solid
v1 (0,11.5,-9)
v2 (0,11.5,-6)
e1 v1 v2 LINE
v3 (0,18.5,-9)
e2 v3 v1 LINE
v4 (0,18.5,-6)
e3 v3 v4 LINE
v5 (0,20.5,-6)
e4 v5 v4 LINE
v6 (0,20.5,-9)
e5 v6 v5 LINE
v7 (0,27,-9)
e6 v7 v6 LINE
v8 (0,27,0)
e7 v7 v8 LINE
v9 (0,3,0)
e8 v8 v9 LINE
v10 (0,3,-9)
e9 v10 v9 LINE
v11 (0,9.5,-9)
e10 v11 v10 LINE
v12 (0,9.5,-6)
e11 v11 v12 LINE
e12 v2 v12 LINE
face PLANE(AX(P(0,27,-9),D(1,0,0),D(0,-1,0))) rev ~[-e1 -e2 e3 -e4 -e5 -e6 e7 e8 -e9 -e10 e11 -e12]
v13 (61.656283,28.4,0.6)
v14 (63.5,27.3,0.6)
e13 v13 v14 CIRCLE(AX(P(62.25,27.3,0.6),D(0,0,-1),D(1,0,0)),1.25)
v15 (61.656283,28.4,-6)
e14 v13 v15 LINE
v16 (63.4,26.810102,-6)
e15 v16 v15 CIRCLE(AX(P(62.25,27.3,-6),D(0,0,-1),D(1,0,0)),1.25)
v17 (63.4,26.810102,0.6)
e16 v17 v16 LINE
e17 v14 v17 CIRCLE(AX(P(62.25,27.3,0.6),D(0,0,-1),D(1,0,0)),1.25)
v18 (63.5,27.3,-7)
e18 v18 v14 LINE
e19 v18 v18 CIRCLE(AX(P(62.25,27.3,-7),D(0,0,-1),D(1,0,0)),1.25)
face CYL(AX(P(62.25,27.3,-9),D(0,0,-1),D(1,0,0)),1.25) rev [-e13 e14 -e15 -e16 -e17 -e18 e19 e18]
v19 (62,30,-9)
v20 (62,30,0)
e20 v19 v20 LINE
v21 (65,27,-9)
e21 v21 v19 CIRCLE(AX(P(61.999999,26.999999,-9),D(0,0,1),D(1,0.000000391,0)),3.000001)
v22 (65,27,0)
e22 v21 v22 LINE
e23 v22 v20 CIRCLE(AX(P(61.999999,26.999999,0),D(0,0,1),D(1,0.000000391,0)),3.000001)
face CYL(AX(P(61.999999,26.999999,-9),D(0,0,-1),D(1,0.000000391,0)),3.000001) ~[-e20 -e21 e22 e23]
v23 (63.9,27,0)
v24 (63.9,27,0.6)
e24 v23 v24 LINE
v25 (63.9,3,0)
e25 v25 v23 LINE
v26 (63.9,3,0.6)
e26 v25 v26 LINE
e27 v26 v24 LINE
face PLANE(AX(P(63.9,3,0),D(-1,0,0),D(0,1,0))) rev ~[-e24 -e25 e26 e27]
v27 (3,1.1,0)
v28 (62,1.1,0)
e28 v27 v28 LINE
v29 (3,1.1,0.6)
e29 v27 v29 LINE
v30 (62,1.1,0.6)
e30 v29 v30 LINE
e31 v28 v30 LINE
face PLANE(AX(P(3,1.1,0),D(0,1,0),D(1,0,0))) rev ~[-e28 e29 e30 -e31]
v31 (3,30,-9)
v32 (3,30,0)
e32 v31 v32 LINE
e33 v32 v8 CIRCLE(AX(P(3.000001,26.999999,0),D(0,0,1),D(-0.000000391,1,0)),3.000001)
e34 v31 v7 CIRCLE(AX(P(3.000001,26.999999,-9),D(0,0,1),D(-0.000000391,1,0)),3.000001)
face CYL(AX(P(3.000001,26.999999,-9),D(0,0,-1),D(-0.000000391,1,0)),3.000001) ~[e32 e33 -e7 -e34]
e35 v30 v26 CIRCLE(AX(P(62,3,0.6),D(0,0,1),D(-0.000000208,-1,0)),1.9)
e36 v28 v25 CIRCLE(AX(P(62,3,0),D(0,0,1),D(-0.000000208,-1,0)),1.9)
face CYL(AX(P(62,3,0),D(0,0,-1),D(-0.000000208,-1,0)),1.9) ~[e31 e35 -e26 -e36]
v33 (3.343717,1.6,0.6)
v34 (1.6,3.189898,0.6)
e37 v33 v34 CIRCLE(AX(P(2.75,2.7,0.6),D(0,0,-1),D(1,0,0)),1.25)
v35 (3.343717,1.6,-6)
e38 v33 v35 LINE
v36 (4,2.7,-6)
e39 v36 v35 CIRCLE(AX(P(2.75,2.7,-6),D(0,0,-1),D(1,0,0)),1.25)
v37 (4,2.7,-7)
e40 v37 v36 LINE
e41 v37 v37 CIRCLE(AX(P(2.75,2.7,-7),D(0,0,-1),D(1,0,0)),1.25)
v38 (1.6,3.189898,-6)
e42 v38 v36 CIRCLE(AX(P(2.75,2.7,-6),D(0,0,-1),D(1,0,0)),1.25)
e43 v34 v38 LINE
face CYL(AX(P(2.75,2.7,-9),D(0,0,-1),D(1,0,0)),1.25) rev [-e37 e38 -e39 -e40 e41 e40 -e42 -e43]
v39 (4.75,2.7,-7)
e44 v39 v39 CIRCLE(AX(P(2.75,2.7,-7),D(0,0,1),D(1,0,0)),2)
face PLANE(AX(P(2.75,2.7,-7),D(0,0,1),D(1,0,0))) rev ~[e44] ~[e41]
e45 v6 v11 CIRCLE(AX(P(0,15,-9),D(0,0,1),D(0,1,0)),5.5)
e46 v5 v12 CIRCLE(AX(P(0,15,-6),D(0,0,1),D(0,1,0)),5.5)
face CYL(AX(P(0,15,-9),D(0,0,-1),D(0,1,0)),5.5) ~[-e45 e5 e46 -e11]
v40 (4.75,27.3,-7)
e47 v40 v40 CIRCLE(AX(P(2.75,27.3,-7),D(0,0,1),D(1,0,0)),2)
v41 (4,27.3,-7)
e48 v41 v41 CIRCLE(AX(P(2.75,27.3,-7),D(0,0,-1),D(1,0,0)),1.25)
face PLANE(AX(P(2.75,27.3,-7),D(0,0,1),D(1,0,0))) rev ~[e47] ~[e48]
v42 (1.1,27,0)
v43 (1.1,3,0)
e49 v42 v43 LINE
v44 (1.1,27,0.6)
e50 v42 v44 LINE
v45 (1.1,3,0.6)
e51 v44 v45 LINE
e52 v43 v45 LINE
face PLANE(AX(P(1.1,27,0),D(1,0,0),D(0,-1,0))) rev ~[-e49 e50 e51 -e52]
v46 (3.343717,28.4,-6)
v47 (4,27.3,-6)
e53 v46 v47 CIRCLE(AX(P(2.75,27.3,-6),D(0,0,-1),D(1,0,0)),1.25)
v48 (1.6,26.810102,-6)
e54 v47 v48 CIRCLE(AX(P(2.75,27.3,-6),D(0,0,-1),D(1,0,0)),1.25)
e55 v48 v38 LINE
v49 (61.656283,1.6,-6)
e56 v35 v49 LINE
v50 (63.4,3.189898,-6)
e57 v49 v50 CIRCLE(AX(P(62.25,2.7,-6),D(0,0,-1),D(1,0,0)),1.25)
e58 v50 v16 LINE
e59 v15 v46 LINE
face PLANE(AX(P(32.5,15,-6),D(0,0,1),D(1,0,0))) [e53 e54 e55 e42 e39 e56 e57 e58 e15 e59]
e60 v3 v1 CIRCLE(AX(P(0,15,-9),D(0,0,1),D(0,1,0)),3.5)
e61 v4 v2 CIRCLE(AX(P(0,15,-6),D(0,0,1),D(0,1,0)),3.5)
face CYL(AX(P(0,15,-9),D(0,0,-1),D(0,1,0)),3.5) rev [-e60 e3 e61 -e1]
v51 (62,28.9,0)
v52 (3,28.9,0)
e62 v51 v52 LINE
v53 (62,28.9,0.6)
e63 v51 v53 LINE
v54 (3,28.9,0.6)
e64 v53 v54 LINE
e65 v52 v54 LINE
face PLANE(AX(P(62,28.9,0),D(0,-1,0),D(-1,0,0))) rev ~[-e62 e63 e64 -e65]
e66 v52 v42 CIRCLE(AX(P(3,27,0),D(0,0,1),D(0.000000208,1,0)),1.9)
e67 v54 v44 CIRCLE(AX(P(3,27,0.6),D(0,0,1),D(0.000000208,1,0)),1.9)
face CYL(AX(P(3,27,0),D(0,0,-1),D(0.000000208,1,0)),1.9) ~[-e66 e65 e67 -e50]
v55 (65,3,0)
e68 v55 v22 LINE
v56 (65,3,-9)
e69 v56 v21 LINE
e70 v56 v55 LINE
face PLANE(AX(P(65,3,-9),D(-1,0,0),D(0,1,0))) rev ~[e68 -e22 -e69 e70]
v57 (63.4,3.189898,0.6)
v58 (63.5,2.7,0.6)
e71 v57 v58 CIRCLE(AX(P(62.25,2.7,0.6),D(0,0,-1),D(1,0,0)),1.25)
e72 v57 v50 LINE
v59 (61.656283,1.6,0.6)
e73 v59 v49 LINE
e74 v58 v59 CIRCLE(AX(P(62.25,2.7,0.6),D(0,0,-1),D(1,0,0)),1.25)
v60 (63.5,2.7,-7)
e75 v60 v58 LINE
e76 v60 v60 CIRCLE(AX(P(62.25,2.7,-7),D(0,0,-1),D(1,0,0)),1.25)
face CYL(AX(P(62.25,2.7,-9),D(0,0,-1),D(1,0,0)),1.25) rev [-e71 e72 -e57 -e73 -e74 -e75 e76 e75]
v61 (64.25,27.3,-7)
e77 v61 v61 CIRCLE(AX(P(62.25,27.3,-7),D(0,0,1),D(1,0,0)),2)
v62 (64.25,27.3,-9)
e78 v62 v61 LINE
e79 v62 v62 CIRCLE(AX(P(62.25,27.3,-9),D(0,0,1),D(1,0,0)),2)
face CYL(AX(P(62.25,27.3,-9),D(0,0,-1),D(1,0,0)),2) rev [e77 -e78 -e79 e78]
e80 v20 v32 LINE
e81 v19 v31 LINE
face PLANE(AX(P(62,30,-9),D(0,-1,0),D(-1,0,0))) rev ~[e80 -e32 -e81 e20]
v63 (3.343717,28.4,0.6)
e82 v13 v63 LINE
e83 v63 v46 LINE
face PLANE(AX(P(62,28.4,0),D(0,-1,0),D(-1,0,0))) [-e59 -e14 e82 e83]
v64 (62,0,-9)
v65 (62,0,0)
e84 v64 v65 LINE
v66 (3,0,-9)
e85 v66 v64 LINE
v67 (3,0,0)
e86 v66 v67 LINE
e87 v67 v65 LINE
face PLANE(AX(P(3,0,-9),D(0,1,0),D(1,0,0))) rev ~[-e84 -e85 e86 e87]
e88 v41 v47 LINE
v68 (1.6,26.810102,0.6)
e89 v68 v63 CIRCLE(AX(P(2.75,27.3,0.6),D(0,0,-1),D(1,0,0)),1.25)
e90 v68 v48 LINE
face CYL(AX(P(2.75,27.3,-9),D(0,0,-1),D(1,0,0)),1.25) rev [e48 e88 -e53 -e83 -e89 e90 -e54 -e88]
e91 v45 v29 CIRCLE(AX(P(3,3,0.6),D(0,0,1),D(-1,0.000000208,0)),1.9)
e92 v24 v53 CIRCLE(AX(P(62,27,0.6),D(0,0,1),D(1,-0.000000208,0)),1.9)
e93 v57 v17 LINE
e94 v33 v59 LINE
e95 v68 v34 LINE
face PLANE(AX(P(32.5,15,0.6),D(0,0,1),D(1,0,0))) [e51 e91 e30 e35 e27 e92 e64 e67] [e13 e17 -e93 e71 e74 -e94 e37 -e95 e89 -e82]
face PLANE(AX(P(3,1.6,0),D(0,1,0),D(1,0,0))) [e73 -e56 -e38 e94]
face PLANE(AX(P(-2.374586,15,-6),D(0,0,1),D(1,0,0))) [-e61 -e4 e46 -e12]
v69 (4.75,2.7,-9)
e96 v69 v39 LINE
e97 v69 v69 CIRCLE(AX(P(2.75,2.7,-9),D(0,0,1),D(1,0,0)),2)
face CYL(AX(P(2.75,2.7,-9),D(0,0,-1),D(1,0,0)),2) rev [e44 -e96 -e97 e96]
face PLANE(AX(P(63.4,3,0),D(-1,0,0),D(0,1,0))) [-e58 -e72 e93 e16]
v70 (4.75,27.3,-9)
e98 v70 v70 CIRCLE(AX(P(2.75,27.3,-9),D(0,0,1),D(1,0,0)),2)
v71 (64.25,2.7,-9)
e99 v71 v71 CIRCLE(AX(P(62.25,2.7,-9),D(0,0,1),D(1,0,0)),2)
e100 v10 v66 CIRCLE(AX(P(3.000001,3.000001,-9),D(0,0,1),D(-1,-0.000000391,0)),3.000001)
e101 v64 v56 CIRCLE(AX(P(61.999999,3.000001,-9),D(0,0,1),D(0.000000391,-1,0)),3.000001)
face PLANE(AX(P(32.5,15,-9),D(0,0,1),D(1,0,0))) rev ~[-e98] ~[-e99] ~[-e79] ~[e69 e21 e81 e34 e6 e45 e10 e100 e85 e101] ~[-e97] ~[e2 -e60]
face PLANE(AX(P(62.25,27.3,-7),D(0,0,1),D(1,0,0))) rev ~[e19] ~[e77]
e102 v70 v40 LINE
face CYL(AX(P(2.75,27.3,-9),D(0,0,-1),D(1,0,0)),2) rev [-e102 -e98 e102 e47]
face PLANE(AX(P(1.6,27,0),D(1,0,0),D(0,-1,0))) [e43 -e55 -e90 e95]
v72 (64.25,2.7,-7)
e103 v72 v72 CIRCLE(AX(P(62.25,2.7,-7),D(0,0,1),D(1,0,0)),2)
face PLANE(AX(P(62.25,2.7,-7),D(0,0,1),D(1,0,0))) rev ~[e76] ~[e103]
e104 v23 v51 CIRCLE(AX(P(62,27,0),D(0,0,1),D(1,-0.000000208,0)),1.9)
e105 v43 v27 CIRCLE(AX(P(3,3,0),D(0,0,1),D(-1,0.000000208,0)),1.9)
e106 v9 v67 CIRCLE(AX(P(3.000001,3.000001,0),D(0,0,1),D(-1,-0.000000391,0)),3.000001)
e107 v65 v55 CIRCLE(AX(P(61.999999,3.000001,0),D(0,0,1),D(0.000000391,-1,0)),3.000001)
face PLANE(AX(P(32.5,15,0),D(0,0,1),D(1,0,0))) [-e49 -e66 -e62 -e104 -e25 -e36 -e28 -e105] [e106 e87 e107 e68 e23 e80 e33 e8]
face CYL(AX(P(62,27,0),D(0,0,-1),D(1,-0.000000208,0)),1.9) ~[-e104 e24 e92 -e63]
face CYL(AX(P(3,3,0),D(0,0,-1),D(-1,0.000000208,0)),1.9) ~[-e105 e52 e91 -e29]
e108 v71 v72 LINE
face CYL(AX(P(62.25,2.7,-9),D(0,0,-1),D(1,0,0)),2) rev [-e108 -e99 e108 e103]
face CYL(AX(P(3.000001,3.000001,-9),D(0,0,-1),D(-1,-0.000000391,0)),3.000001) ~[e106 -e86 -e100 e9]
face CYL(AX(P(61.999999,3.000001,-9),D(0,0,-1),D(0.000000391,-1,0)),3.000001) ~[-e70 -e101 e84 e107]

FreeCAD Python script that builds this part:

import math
import FreeCAD as App
import Part
import Sketcher
Q = App.Units.Quantity

doc = App.newDocument("Part")
params = doc.addObject("Spreadsheet::Sheet", "Params")
for row, (alias, value) in enumerate([
    ("sketch1_radius", "3.000001 mm"),
    ("sketch1_width", "59 mm"),
    ("sketch1_height", "24 mm"),
    ("pad1_length", "9 mm"),
    ("sketch2_radius", "1.400002 mm"),
    ("sketch2_width", "59 mm"),
    ("sketch2_height", "24 mm"),
    ("pocket1_length", "6 mm"),
    ("sketch3_radius", "1.9 mm"),
    ("sketch3_radius2", "1.400002 mm"),
    ("sketch3_width", "59 mm"),
    ("sketch3_height", "24 mm"),
    ("pad2_length", "0.6 mm"),
    ("sketch4_diameter", "4 mm"),
    ("pocket2_length", "2 mm"),
    ("sketch5_diameter", "2.5 mm"),
    ("pocket3_length", "10 mm"),
    ("sketch6_radius", "5.5 mm"),
    ("sketch6_radius2", "3.5 mm"),
    ("pad3_length", "3 mm"),
], start=1):
    params.set(f"A{row}", alias)
    params.set(f"B{row}", "=" + value)
    params.setAlias(f"B{row}", alias)

body = doc.addObject("PartDesign::Body", "Body")

sketch1 = body.newObject("Sketcher::SketchObject", "Sketch")
sketch1.AttachmentSupport = (doc.getObject("XY_Plane"), [""])
sketch1.MapMode = "FlatFace"
sketch1.addGeometry([
    Part.LineSegment(App.Vector(0, 27, 0), App.Vector(0, 3, 0)),
    Part.ArcOfCircle(Part.Circle(App.Vector(3, 3, 0), App.Vector(0, 0, 1), 3), math.radians(-180), math.radians(-90)),
    Part.LineSegment(App.Vector(3, 0, 0), App.Vector(62, 0, 0)),
    Part.ArcOfCircle(Part.Circle(App.Vector(62, 3, 0), App.Vector(0, 0, 1), 3), math.radians(-90), math.radians(0)),
    Part.LineSegment(App.Vector(65, 3, 0), App.Vector(65, 27, 0)),
    Part.ArcOfCircle(Part.Circle(App.Vector(62, 27, 0), App.Vector(0, 0, 1), 3), math.radians(0), math.radians(90)),
    Part.LineSegment(App.Vector(62, 30, 0), App.Vector(3, 30, 0)),
    Part.ArcOfCircle(Part.Circle(App.Vector(3, 27, 0), App.Vector(0, 0, 1), 3), math.radians(90), math.radians(180)),
], False)
sketch1.addConstraint([
    Sketcher.Constraint("Tangent", 0, 2, 1, 1),
    Sketcher.Constraint("Tangent", 1, 2, 2, 1),
    Sketcher.Constraint("Tangent", 2, 2, 3, 1),
    Sketcher.Constraint("Tangent", 3, 2, 4, 1),
    Sketcher.Constraint("Tangent", 4, 2, 5, 1),
    Sketcher.Constraint("Tangent", 5, 2, 6, 1),
    Sketcher.Constraint("Tangent", 6, 2, 7, 1),
    Sketcher.Constraint("Tangent", 7, 2, 0, 1),
    Sketcher.Constraint("Vertical", 0),
    Sketcher.Constraint("Horizontal", 2),
    Sketcher.Constraint("Vertical", 4),
    Sketcher.Constraint("Horizontal", 6),
    Sketcher.Constraint("Equal", 1, 3),
    Sketcher.Constraint("Equal", 3, 5),
    Sketcher.Constraint("Equal", 5, 7),
    Sketcher.Constraint("PointOnObject", 0, 2, -2),
    Sketcher.Constraint("PointOnObject", 1, 2, -1),
    Sketcher.Constraint("Radius", 1, Q("3.000001 mm")),
    Sketcher.Constraint("DistanceX", 2, 1, 2, 2, Q("59 mm")),
    Sketcher.Constraint("DistanceY", 0, 2, 0, 1, Q("24 mm")),
])
sketch1.setExpression("Constraints[17]", "Params.sketch1_radius")
sketch1.setExpression("Constraints[18]", "Params.sketch1_width")
sketch1.setExpression("Constraints[19]", "Params.sketch1_height")
pad1 = body.newObject("PartDesign::Pad", "Pad")
pad1.Profile = sketch1
pad1.setExpression("Length", "Params.pad1_length")

sketch2 = body.newObject("Sketcher::SketchObject", "Sketch001")
sketch2.AttachmentSupport = (doc.getObject("XY_Plane"), [""])
sketch2.MapMode = "FlatFace"
sketch2.AttachmentOffset = App.Placement(App.Vector(0, 0, 9), App.Rotation())
sketch2.addGeometry([
    Part.LineSegment(App.Vector(1.6, 27, 0), App.Vector(1.6, 3, 0)),
    Part.ArcOfCircle(Part.Circle(App.Vector(3, 3, 0), App.Vector(0, 0, 1), 1.4), math.radians(-180), math.radians(-90)),
    Part.LineSegment(App.Vector(3, 1.6, 0), App.Vector(62, 1.6, 0)),
    Part.ArcOfCircle(Part.Circle(App.Vector(62, 3, 0), App.Vector(0, 0, 1), 1.4), math.radians(-90), math.radians(0)),
    Part.LineSegment(App.Vector(63.4, 3, 0), App.Vector(63.4, 27, 0)),
    Part.ArcOfCircle(Part.Circle(App.Vector(62, 27, 0), App.Vector(0, 0, 1), 1.4), math.radians(0), math.radians(90)),
    Part.LineSegment(App.Vector(62, 28.4, 0), App.Vector(3, 28.4, 0)),
    Part.ArcOfCircle(Part.Circle(App.Vector(3, 27, 0), App.Vector(0, 0, 1), 1.4), math.radians(90), math.radians(180)),
], False)
sketch2.addConstraint([
    Sketcher.Constraint("Tangent", 0, 2, 1, 1),
    Sketcher.Constraint("Tangent", 1, 2, 2, 1),
    Sketcher.Constraint("Tangent", 2, 2, 3, 1),
    Sketcher.Constraint("Tangent", 3, 2, 4, 1),
    Sketcher.Constraint("Tangent", 4, 2, 5, 1),
    Sketcher.Constraint("Tangent", 5, 2, 6, 1),
    Sketcher.Constraint("Tangent", 6, 2, 7, 1),
    Sketcher.Constraint("Tangent", 7, 2, 0, 1),
    Sketcher.Constraint("Vertical", 0),
    Sketcher.Constraint("Horizontal", 2),
    Sketcher.Constraint("Vertical", 4),
    Sketcher.Constraint("Horizontal", 6),
    Sketcher.Constraint("Equal", 1, 3),
    Sketcher.Constraint("Equal", 3, 5),
    Sketcher.Constraint("Equal", 5, 7),
    Sketcher.Constraint("Radius", 1, Q("1.400002 mm")),
    Sketcher.Constraint("DistanceX", 2, 1, 2, 2, Q("59 mm")),
    Sketcher.Constraint("DistanceY", 0, 2, 0, 1, Q("24 mm")),
    Sketcher.Constraint("DistanceX", -1, 1, 1, 3, Q("3.000002 mm")),
    Sketcher.Constraint("DistanceY", -1, 1, 1, 3, Q("3.000002 mm")),
])
sketch2.setExpression("Constraints[15]", "Params.sketch2_radius")
sketch2.setExpression("Constraints[16]", "Params.sketch2_width")
sketch2.setExpression("Constraints[17]", "Params.sketch2_height")
pocket1 = body.newObject("PartDesign::Pocket", "Pocket")
pocket1.Profile = sketch2
pocket1.setExpression("Length", "Params.pocket1_length")

sketch3 = body.newObject("Sketcher::SketchObject", "Sketch002")
sketch3.AttachmentSupport = (doc.getObject("XY_Plane"), [""])
sketch3.MapMode = "FlatFace"
sketch3.AttachmentOffset = App.Placement(App.Vector(0, 0, 9), App.Rotation())
sketch3.addGeometry([
    Part.LineSegment(App.Vector(1.1, 27, 0), App.Vector(1.1, 3, 0)),
    Part.ArcOfCircle(Part.Circle(App.Vector(3, 3, 0), App.Vector(0, 0, 1), 1.9), math.radians(180), math.radians(270)),
    Part.LineSegment(App.Vector(3, 1.1, 0), App.Vector(62, 1.1, 0)),
    Part.ArcOfCircle(Part.Circle(App.Vector(62, 3, 0), App.Vector(0, 0, 1), 1.9), math.radians(-90), math.radians(0)),
    Part.LineSegment(App.Vector(63.9, 3, 0), App.Vector(63.9, 27, 0)),
    Part.ArcOfCircle(Part.Circle(App.Vector(62, 27, 0), App.Vector(0, 0, 1), 1.9), math.radians(0), math.radians(90)),
    Part.LineSegment(App.Vector(62, 28.9, 0), App.Vector(3, 28.9, 0)),
    Part.ArcOfCircle(Part.Circle(App.Vector(3, 27, 0), App.Vector(0, 0, 1), 1.9), math.radians(90), math.radians(180)),
    Part.LineSegment(App.Vector(1.6, 3, 0), App.Vector(1.6, 27, 0)),
    Part.ArcOfCircle(Part.Circle(App.Vector(3, 27, 0), App.Vector(0, 0, 1), 1.4), math.radians(90), math.radians(180)),
    Part.LineSegment(App.Vector(3, 28.4, 0), App.Vector(62, 28.4, 0)),
    Part.ArcOfCircle(Part.Circle(App.Vector(62, 27, 0), App.Vector(0, 0, 1), 1.4), math.radians(0), math.radians(90)),
    Part.LineSegment(App.Vector(63.4, 27, 0), App.Vector(63.4, 3, 0)),
    Part.ArcOfCircle(Part.Circle(App.Vector(62, 3, 0), App.Vector(0, 0, 1), 1.4), math.radians(-90), math.radians(0)),
    Part.LineSegment(App.Vector(62, 1.6, 0), App.Vector(3, 1.6, 0)),
    Part.ArcOfCircle(Part.Circle(App.Vector(3, 3, 0), App.Vector(0, 0, 1), 1.4), math.radians(-180), math.radians(-90)),
], False)
sketch3.addConstraint([
    Sketcher.Constraint("Tangent", 0, 2, 1, 1),
    Sketcher.Constraint("Tangent", 1, 2, 2, 1),
    Sketcher.Constraint("Tangent", 2, 2, 3, 1),
    Sketcher.Constraint("Tangent", 3, 2, 4, 1),
    Sketcher.Constraint("Tangent", 4, 2, 5, 1),
    Sketcher.Constraint("Tangent", 5, 2, 6, 1),
    Sketcher.Constraint("Tangent", 6, 2, 7, 1),
    Sketcher.Constraint("Tangent", 7, 2, 0, 1),
    Sketcher.Constraint("Tangent", 8, 2, 9, 2),
    Sketcher.Constraint("Tangent", 9, 1, 10, 1),
    Sketcher.Constraint("Tangent", 10, 2, 11, 2),
    Sketcher.Constraint("Tangent", 11, 1, 12, 1),
    Sketcher.Constraint("Tangent", 12, 2, 13, 2),
    Sketcher.Constraint("Tangent", 13, 1, 14, 1),
    Sketcher.Constraint("Tangent", 14, 2, 15, 2),
    Sketcher.Constraint("Tangent", 15, 1, 8, 1),
    Sketcher.Constraint("Vertical", 0),
    Sketcher.Constraint("Horizontal", 2),
    Sketcher.Constraint("Vertical", 4),
    Sketcher.Constraint("Horizontal", 6),
    Sketcher.Constraint("Vertical", 8),
    Sketcher.Constraint("Horizontal", 10),
    Sketcher.Constraint("Vertical", 12),
    Sketcher.Constraint("Horizontal", 14),
    Sketcher.Constraint("Coincident", 9, 3, 7, 3),
    Sketcher.Constraint("Coincident", 11, 3, 5, 3),
    Sketcher.Constraint("Coincident", 13, 3, 3, 3),
    Sketcher.Constraint("Equal", 1, 3),
    Sketcher.Constraint("Equal", 3, 5),
    Sketcher.Constraint("Equal", 5, 7),
    Sketcher.Constraint("Equal", 13, 15),
    Sketcher.Constraint("Radius", 1, Q("1.9 mm")),
    Sketcher.Constraint("Radius", 9, Q("1.400002 mm")),
    Sketcher.Constraint("DistanceX", 2, 1, 2, 2, Q("59 mm")),
    Sketcher.Constraint("DistanceY", 0, 2, 0, 1, Q("24 mm")),
    Sketcher.Constraint("DistanceX", -1, 1, 1, 3, Q("3 mm")),
    Sketcher.Constraint("DistanceY", -1, 1, 1, 3, Q("3 mm")),
])
sketch3.setExpression("Constraints[31]", "Params.sketch3_radius")
sketch3.setExpression("Constraints[32]", "Params.sketch3_radius2")
sketch3.setExpression("Constraints[33]", "Params.sketch3_width")
sketch3.setExpression("Constraints[34]", "Params.sketch3_height")
pad2 = body.newObject("PartDesign::Pad", "Pad001")
pad2.Profile = sketch3
pad2.setExpression("Length", "Params.pad2_length")

sketch4 = body.newObject("Sketcher::SketchObject", "Sketch003")
sketch4.AttachmentSupport = (doc.getObject("XY_Plane"), [""])
sketch4.MapMode = "FlatFace"
sketch4.addGeometry([
    Part.Circle(App.Vector(2.8, 27.3, 0), App.Vector(0, 0, 1), 2),
    Part.Circle(App.Vector(62.2, 27.3, 0), App.Vector(0, 0, 1), 2),
    Part.Circle(App.Vector(62.2, 2.7, 0), App.Vector(0, 0, 1), 2),
    Part.Circle(App.Vector(2.8, 2.7, 0), App.Vector(0, 0, 1), 2),
], False)
sketch4.addConstraint([
    Sketcher.Constraint("Equal", 0, 1),
    Sketcher.Constraint("Equal", 1, 2),
    Sketcher.Constraint("Equal", 2, 3),
    Sketcher.Constraint("Horizontal", 0, 3, 1, 3),
    Sketcher.Constraint("Horizontal", 2, 3, 3, 3),
    Sketcher.Constraint("Vertical", 1, 3, 2, 3),
    Sketcher.Constraint("Vertical", 0, 3, 3, 3),
    Sketcher.Constraint("Diameter", 0, Q("4 mm")),
    Sketcher.Constraint("DistanceY", -1, 1, 0, 3, Q("27.3 mm")),
    Sketcher.Constraint("DistanceY", -1, 1, 2, 3, Q("2.7 mm")),
    Sketcher.Constraint("DistanceX", 0, 3, 1, 3, Q("59.5 mm")),
    Sketcher.Constraint("DistanceX", -1, 1, 0, 3, Q("2.75 mm")),
])
sketch4.setExpression("Constraints[7]", "Params.sketch4_diameter")
pocket2 = body.newObject("PartDesign::Pocket", "Pocket001")
pocket2.Profile = sketch4
pocket2.setExpression("Length", "Params.pocket2_length")
pocket2.Reversed = True

sketch5 = body.newObject("Sketcher::SketchObject", "Sketch004")
sketch5.AttachmentSupport = (doc.getObject("XY_Plane"), [""])
sketch5.MapMode = "FlatFace"
sketch5.addGeometry([
    Part.Circle(App.Vector(2.8, 27.3, 0), App.Vector(0, 0, 1), 1.2),
    Part.Circle(App.Vector(62.2, 27.3, 0), App.Vector(0, 0, 1), 1.2),
    Part.Circle(App.Vector(2.8, 2.7, 0), App.Vector(0, 0, 1), 1.2),
    Part.Circle(App.Vector(62.2, 2.7, 0), App.Vector(0, 0, 1), 1.2),
], False)
sketch5.addConstraint([
    Sketcher.Constraint("Equal", 0, 1),
    Sketcher.Constraint("Equal", 1, 2),
    Sketcher.Constraint("Equal", 2, 3),
    Sketcher.Constraint("Horizontal", 0, 3, 1, 3),
    Sketcher.Constraint("Horizontal", 2, 3, 3, 3),
    Sketcher.Constraint("Vertical", 0, 3, 2, 3),
    Sketcher.Constraint("Vertical", 1, 3, 3, 3),
    Sketcher.Constraint("Diameter", 0, Q("2.5 mm")),
    Sketcher.Constraint("DistanceY", -1, 1, 0, 3, Q("27.3 mm")),
    Sketcher.Constraint("DistanceY", -1, 1, 2, 3, Q("2.7 mm")),
    Sketcher.Constraint("DistanceX", 0, 3, 1, 3, Q("59.5 mm")),
    Sketcher.Constraint("DistanceX", -1, 1, 0, 3, Q("2.75 mm")),
])
sketch5.setExpression("Constraints[7]", "Params.sketch5_diameter")
pocket3 = body.newObject("PartDesign::Pocket", "Pocket002")
pocket3.Profile = sketch5
pocket3.setExpression("Length", "Params.pocket3_length")
pocket3.Reversed = True

sketch6 = body.newObject("Sketcher::SketchObject", "Sketch005")
sketch6.AttachmentSupport = (doc.getObject("XY_Plane"), [""])
sketch6.MapMode = "FlatFace"
sketch6.addGeometry([
    Part.ArcOfCircle(Part.Circle(App.Vector(0, 15, 0), App.Vector(0, 0, 1), 5.5), math.radians(90), math.radians(270)),
    Part.LineSegment(App.Vector(0, 9.5, 0), App.Vector(0, 11.5, 0)),
    Part.ArcOfCircle(Part.Circle(App.Vector(0, 15, 0), App.Vector(0, 0, 1), 3.5), math.radians(90), math.radians(270)),
    Part.LineSegment(App.Vector(0, 18.5, 0), App.Vector(0, 20.5, 0)),
], False)
sketch6.addConstraint([
    Sketcher.Constraint("Coincident", 0, 2, 1, 1),
    Sketcher.Constraint("Coincident", 1, 2, 2, 2),
    Sketcher.Constraint("Coincident", 2, 1, 3, 1),
    Sketcher.Constraint("Coincident", 3, 2, 0, 1),
    Sketcher.Constraint("Vertical", 1),
    Sketcher.Constraint("Vertical", 3),
    Sketcher.Constraint("Coincident", 2, 3, 0, 3),
    Sketcher.Constraint("PointOnObject", 0, 3, -2),
    Sketcher.Constraint("PointOnObject", 0, 2, -2),
    Sketcher.Constraint("PointOnObject", 2, 1, -2),
    Sketcher.Constraint("Radius", 0, Q("5.5 mm")),
    Sketcher.Constraint("Radius", 2, Q("3.5 mm")),
    Sketcher.Constraint("DistanceY", -1, 1, 0, 3, Q("15 mm")),
])
sketch6.setExpression("Constraints[10]", "Params.sketch6_radius")
sketch6.setExpression("Constraints[11]", "Params.sketch6_radius2")
pad3 = body.newObject("PartDesign::Pad", "Pad002")
pad3.Profile = sketch6
pad3.setExpression("Length", "Params.pad3_length")
body2 = doc.addObject("PartDesign::Body", "Body001")
doc.recompute()

body.Placement = App.Placement(App.Vector(0, 0, -9), App.Rotation(App.Vector(0, 0, 1), 0))
boolean = body2.newObject("PartDesign::Boolean", "Boolean")
boolean.Type = "Fuse"
boolean.addObjects([body])

doc.recompute()
